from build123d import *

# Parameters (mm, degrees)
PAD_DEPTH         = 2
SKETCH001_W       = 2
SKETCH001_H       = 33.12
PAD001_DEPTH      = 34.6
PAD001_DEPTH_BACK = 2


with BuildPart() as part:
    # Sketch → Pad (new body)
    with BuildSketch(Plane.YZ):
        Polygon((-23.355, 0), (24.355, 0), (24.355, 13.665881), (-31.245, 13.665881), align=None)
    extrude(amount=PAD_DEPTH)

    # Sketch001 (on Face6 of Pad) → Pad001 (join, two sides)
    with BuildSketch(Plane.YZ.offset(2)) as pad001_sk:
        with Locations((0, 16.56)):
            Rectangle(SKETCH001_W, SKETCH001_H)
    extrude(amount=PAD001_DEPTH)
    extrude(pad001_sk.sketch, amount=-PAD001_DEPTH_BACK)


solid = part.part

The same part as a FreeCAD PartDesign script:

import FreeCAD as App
import Part
import Sketcher
Q = App.Units.Quantity

doc = App.newDocument("Part")
params = doc.addObject("Spreadsheet::Sheet", "Params")
for row, (alias, value) in enumerate([
    ("sketch1_width", "55.6 mm"),
    ("sketch1_width2", "47.71 mm"),
    ("pad1_length", "2 mm"),
    ("sketch2_width", "2 mm"),
    ("sketch2_height", "33.12 mm"),
    ("pad2_length", "34.6 mm"),
    ("pad2_length2", "2 mm"),
], start=1):
    params.set(f"A{row}", alias)
    params.set(f"B{row}", "=" + value)
    params.setAlias(f"B{row}", alias)

body = doc.addObject("PartDesign::Body", "Body")

sketch1 = body.newObject("Sketcher::SketchObject", "Sketch")
sketch1.AttachmentSupport = (doc.getObject("YZ_Plane"), [""])
sketch1.MapMode = "FlatFace"
sketch1.addGeometry(Part.LineSegment(App.Vector(-23, 0, 0), App.Vector(24, 0, 0)), False)
sketch1.addGeometry(Part.LineSegment(App.Vector(24, 0, 0), App.Vector(24, 14, 0)), False)
sketch1.addGeometry(Part.LineSegment(App.Vector(24, 14, 0), App.Vector(-31, 14, 0)), False)
sketch1.addGeometry(Part.LineSegment(App.Vector(-31, 14, 0), App.Vector(-23, 0, 0)), False)
sketch1.addConstraint(Sketcher.Constraint("Coincident", 0, 2, 1, 1))
sketch1.addConstraint(Sketcher.Constraint("Coincident", 1, 2, 2, 1))
sketch1.addConstraint(Sketcher.Constraint("Coincident", 2, 2, 3, 1))
sketch1.addConstraint(Sketcher.Constraint("Coincident", 3, 2, 0, 1))
sketch1.addConstraint(Sketcher.Constraint("Horizontal", 0))
sketch1.addConstraint(Sketcher.Constraint("Vertical", 1))
sketch1.addConstraint(Sketcher.Constraint("Horizontal", 2))
sketch1.addConstraint(Sketcher.Constraint("PointOnObject", 0, 2, -1))
sketch1.addConstraint(Sketcher.Constraint("Angle", 3, Q("-60 deg")))
sketch1.addConstraint(Sketcher.Constraint("DistanceX", 2, 2, 2, 1, 55.6))
sketch1.addConstraint(Sketcher.Constraint("DistanceX", 0, 1, 0, 2, 47.71))
sketch1.addConstraint(Sketcher.Constraint("DistanceX", -1, 1, 0, 2, 24.355))
sketch1.setExpression("Constraints[9]", "Params.sketch1_width")
sketch1.setExpression("Constraints[10]", "Params.sketch1_width2")
pad1 = body.newObject("PartDesign::Pad", "Pad")
pad1.Profile = sketch1
pad1.setExpression("Length", "Params.pad1_length")

sketch2 = body.newObject("Sketcher::SketchObject", "Sketch001")
sketch2.AttachmentSupport = (doc.getObject("YZ_Plane"), [""])
sketch2.MapMode = "FlatFace"
sketch2.AttachmentOffset = App.Placement(App.Vector(0, 0, 2), App.Rotation())
sketch2.addGeometry(Part.LineSegment(App.Vector(-1, 33.1, 0), App.Vector(-1, 0, 0)), False)
sketch2.addGeometry(Part.LineSegment(App.Vector(-1, 0, 0), App.Vector(1, 0, 0)), False)
sketch2.addGeometry(Part.LineSegment(App.Vector(1, 0, 0), App.Vector(1, 33.1, 0)), False)
sketch2.addGeometry(Part.LineSegment(App.Vector(1, 33.1, 0), App.Vector(-1, 33.1, 0)), False)
sketch2.addConstraint(Sketcher.Constraint("Coincident", 0, 2, 1, 1))
sketch2.addConstraint(Sketcher.Constraint("Coincident", 1, 2, 2, 1))
sketch2.addConstraint(Sketcher.Constraint("Coincident", 2, 2, 3, 1))
sketch2.addConstraint(Sketcher.Constraint("Coincident", 3, 2, 0, 1))
sketch2.addConstraint(Sketcher.Constraint("Vertical", 0))
sketch2.addConstraint(Sketcher.Constraint("Horizontal", 1))
sketch2.addConstraint(Sketcher.Constraint("Vertical", 2))
sketch2.addConstraint(Sketcher.Constraint("Horizontal", 3))
sketch2.addConstraint(Sketcher.Constraint("Symmetric", 0, 2, 1, 2, -1, 1))
sketch2.addConstraint(Sketcher.Constraint("DistanceX", 1, 1, 1, 2, 2.0))
sketch2.addConstraint(Sketcher.Constraint("DistanceY", 0, 2, 0, 1, 33.12))
sketch2.setExpression("Constraints[9]", "Params.sketch2_width")
sketch2.setExpression("Constraints[10]", "Params.sketch2_height")
pad2 = body.newObject("PartDesign::Pad", "Pad001")
pad2.Profile = sketch2
pad2.Type = "TwoLengths"
pad2.setExpression("Length", "Params.pad2_length")
pad2.setExpression("Length2", "Params.pad2_length2")

doc.recompute()
